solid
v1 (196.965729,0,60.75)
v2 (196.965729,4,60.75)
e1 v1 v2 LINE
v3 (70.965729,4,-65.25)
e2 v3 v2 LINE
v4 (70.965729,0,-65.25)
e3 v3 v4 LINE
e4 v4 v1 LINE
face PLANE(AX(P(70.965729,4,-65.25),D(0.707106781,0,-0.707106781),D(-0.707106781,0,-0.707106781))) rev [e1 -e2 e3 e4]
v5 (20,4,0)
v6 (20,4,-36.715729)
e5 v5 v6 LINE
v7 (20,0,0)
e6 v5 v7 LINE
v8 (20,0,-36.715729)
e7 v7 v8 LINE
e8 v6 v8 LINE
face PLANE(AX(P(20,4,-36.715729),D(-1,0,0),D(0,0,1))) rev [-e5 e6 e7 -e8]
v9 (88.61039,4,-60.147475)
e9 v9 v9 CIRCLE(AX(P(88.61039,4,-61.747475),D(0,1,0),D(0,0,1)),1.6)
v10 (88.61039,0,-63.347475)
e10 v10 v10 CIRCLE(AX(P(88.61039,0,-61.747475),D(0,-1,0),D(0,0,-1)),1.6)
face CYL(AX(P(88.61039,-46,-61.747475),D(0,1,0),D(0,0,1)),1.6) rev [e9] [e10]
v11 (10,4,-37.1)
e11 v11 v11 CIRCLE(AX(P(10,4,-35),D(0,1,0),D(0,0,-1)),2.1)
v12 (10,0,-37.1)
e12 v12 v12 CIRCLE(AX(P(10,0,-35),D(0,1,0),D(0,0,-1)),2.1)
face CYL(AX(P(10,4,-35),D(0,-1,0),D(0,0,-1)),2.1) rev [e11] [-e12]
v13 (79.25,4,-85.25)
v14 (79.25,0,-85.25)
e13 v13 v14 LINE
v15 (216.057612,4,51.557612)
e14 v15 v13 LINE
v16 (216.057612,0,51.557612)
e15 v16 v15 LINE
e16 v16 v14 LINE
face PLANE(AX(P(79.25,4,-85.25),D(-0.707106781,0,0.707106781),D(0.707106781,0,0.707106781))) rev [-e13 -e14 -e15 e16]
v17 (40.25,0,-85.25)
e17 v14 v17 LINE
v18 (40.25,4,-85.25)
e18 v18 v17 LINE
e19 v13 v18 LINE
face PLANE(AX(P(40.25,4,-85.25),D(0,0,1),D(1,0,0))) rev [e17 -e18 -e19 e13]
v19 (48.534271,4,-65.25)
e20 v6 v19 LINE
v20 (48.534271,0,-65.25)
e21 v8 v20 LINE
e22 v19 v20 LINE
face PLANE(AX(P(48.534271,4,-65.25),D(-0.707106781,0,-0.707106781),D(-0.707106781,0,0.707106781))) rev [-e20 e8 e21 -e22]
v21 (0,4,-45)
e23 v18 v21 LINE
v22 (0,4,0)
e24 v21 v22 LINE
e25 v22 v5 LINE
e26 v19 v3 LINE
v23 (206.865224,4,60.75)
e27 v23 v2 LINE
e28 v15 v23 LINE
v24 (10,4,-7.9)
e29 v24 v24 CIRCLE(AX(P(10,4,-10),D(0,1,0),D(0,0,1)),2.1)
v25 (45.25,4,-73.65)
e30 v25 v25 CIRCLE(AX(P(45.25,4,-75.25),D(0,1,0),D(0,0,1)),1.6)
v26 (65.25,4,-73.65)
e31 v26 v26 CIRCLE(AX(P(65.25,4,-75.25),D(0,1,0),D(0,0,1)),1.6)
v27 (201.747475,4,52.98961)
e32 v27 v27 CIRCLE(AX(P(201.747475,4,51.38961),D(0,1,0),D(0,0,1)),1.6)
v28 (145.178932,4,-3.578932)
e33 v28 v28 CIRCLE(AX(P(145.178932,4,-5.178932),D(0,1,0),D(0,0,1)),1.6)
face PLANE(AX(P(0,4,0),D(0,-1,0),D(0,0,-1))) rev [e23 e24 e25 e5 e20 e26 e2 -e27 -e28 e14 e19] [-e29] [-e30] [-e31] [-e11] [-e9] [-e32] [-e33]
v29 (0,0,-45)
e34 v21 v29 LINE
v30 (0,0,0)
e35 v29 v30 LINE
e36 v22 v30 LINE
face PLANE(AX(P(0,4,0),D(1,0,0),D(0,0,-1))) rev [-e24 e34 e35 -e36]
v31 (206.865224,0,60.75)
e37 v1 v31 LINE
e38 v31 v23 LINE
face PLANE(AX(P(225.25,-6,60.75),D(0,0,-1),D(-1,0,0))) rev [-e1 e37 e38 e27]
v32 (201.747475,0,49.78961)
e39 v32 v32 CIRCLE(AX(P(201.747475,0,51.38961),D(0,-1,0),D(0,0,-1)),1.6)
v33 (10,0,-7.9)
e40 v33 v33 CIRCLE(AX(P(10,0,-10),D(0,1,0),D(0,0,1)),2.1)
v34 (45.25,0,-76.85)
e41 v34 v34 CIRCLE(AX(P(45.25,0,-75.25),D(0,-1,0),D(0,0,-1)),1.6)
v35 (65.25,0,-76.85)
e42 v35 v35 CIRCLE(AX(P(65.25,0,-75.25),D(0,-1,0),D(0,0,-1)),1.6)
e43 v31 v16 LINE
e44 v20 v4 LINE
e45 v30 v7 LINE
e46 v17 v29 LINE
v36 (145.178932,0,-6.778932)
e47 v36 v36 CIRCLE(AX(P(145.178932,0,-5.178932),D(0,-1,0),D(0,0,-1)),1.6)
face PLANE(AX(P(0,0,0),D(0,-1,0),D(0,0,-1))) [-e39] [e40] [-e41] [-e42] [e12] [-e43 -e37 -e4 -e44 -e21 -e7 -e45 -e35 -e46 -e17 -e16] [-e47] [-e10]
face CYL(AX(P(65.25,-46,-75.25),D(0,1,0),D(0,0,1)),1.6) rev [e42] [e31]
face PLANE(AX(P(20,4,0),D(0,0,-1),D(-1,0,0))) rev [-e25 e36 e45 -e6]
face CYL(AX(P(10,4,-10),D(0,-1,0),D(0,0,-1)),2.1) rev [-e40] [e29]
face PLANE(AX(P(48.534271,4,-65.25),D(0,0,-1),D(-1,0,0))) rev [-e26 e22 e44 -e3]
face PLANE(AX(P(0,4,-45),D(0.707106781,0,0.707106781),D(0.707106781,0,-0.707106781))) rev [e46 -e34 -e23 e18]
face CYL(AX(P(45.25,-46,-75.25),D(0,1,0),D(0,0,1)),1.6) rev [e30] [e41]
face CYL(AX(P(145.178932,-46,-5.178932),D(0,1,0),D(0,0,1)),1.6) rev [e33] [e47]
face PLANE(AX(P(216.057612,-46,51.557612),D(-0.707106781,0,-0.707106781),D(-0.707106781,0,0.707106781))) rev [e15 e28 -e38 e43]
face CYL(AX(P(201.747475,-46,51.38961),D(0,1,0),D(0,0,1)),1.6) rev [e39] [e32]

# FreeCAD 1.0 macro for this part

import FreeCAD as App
import Part
import Sketcher
Q = App.Units.Quantity

doc = App.newDocument("Part")
params = doc.addObject("Spreadsheet::Sheet", "Params")
for row, (alias, value) in enumerate([
    ("sketch1_diameter", "4.2 mm"),
    ("sketch1_width", "20 mm"),
    ("sketch1_width2", "45 mm"),
    ("sketch1_width3", "39 mm"),
    ("pad1_length", "4 mm"),
    ("sketch2_width", "45 mm"),
    ("sketch2_height", "39 mm"),
    ("sketch2_height2", "20 mm"),
    ("pocket1_length", "10 mm"),
    ("sketch3_diameter", "3.2 mm"),
    ("pocket2_length", "50 mm"),
    ("sketch4_length", "13 mm"),
    ("pocket3_length", "50 mm"),
    ("sketch5_diameter", "3.2 mm"),
    ("pocket4_length", "50 mm"),
], start=1):
    params.set(f"A{row}", alias)
    params.set(f"B{row}", "=" + value)
    params.setAlias(f"B{row}", alias)

body = doc.addObject("PartDesign::Body", "Body")

# Sketch on XZ plane
sketch1 = body.newObject("Sketcher::SketchObject", "Sketch")
sketch1.AttachmentSupport = (doc.getObject("XZ_Plane"), [""])
sketch1.MapMode = "FlatFace"
sketch1.addGeometry([
    Part.LineSegment(App.Vector(0, 0, 0), App.Vector(20, 0, 0)),  # 0
    Part.LineSegment(App.Vector(20, 0, 0), App.Vector(20, -36.715729, 0)),  # 1
    Part.LineSegment(App.Vector(20, -36.715729, 0), App.Vector(48.534271, -65.25, 0)),  # 2
    Part.LineSegment(App.Vector(48.534271, -65.25, 0), App.Vector(70.965729, -65.25, 0)),  # 3
    Part.LineSegment(App.Vector(70.965729, -65.25, 0), App.Vector(205.25, 69.034271, 0)),  # 4
    Part.LineSegment(App.Vector(205.25, 69.034271, 0), App.Vector(205.25, 91.465729, 0)),  # 5
    Part.LineSegment(App.Vector(205.25, 91.465729, 0), App.Vector(176.715729, 120, 0)),  # 6
    Part.LineSegment(App.Vector(176.715729, 120, 0), App.Vector(140, 120, 0)),  # 7
    Part.LineSegment(App.Vector(140, 120, 0), App.Vector(140, 140, 0)),  # 8
    Part.LineSegment(App.Vector(140, 140, 0), App.Vector(185, 140, 0)),  # 9
    Part.LineSegment(App.Vector(185, 140, 0), App.Vector(225.25, 99.75, 0)),  # 10
    Part.LineSegment(App.Vector(225.25, 99.75, 0), App.Vector(225.25, 60.75, 0)),  # 11
    Part.LineSegment(App.Vector(225.25, 60.75, 0), App.Vector(79.25, -85.25, 0)),  # 12
    Part.LineSegment(App.Vector(79.25, -85.25, 0), App.Vector(40.25, -85.25, 0)),  # 13
    Part.LineSegment(App.Vector(40.25, -85.25, 0), App.Vector(0, -45, 0)),  # 14
    Part.LineSegment(App.Vector(0, -45, 0), App.Vector(0, 0, 0)),  # 15
    Part.Circle(App.Vector(175, 130, 0), App.Vector(0, 0, 1), 2.1),  # 16
    Part.Circle(App.Vector(150, 130, 0), App.Vector(0, 0, 1), 2.1),  # 17
    Part.Circle(App.Vector(10, -10, 0), App.Vector(0, 0, 1), 2.1),  # 18
    Part.Circle(App.Vector(10, -35, 0), App.Vector(0, 0, 1), 2.1),  # 19
], False)
sketch1.addConstraint([
    Sketcher.Constraint("Coincident", 0, 2, 1, 1),
    Sketcher.Constraint("Coincident", 1, 2, 2, 1),
    Sketcher.Constraint("Coincident", 2, 2, 3, 1),
    Sketcher.Constraint("Coincident", 3, 2, 4, 1),
    Sketcher.Constraint("Coincident", 4, 2, 5, 1),
    Sketcher.Constraint("Coincident", 5, 2, 6, 1),
    Sketcher.Constraint("Coincident", 6, 2, 7, 1),
    Sketcher.Constraint("Coincident", 7, 2, 8, 1),
    Sketcher.Constraint("Coincident", 8, 2, 9, 1),
    Sketcher.Constraint("Coincident", 9, 2, 10, 1),
    Sketcher.Constraint("Coincident", 10, 2, 11, 1),
    Sketcher.Constraint("Coincident", 11, 2, 12, 1),
    Sketcher.Constraint("Coincident", 12, 2, 13, 1),
    Sketcher.Constraint("Coincident", 13, 2, 14, 1),
    Sketcher.Constraint("Coincident", 14, 2, 15, 1),
    Sketcher.Constraint("Coincident", 15, 2, 0, 1),
    Sketcher.Constraint("Horizontal", 0),
    Sketcher.Constraint("Vertical", 1),
    Sketcher.Constraint("Horizontal", 3),
    Sketcher.Constraint("Vertical", 5),
    Sketcher.Constraint("Horizontal", 7),
    Sketcher.Constraint("Vertical", 8),
    Sketcher.Constraint("Horizontal", 9),
    Sketcher.Constraint("Vertical", 11),
    Sketcher.Constraint("Horizontal", 13),
    Sketcher.Constraint("Vertical", 15),
    Sketcher.Constraint("Coincident", 15, 2, -1, 1),
    Sketcher.Constraint("Equal", 16, 17),
    Sketcher.Constraint("Equal", 17, 18),
    Sketcher.Constraint("Equal", 18, 19),
    Sketcher.Constraint("Perpendicular", 2, 4),
    Sketcher.Constraint("Perpendicular", 4, 6),
    Sketcher.Constraint("Parallel", 6, 10),
    Sketcher.Constraint("Perpendicular", 10, 12),
    Sketcher.Constraint("Perpendicular", 12, 14),
    Sketcher.Constraint("Horizontal", 16, 3, 17, 3),
    Sketcher.Constraint("Vertical", 18, 3, 19, 3),
    Sketcher.Constraint("Equal", 7, 1),
    Sketcher.Constraint("Equal", 3, 5),
    Sketcher.Constraint("Equal", 0, 8),
    Sketcher.Constraint("Equal", 13, 11),
    Sketcher.Constraint("Equal", 9, 15),
    Sketcher.Constraint("Equal", 2, 6),
    Sketcher.Constraint("Equal", 10, 14),
    Sketcher.Constraint("Diameter", 16, Q("4.2 mm")),
    Sketcher.Constraint("DistanceX", 0, 1, 0, 2, Q("20 mm")),
    Sketcher.Constraint("DistanceX", 9, 1, 9, 2, Q("45 mm")),
    Sketcher.Constraint("DistanceX", 13, 2, 13, 1, Q("39 mm")),
    Sketcher.Constraint("DistanceX", -1, 1, 16, 3, Q("175 mm")),
    Sketcher.Constraint("DistanceY", -1, 1, 16, 3, Q("130 mm")),
    Sketcher.Constraint("DistanceX", -1, 1, 17, 3, Q("150 mm")),
    Sketcher.Constraint("DistanceX", -1, 1, 18, 3, Q("10 mm")),
    Sketcher.Constraint("DistanceY", 18, 3, -1, 1, Q("10 mm")),
    Sketcher.Constraint("DistanceY", 19, 3, -1, 1, Q("35 mm")),
    Sketcher.Constraint("DistanceY", -1, 1, 6, 2, Q("120 mm")),
    Sketcher.Constraint("DistanceX", 5, 2, 10, 2, Q("20 mm")),
    Sketcher.Constraint("DistanceY", 2, 2, -1, 1, Q("65.25 mm")),
    Sketcher.Constraint("DistanceX", 7, 2, 7, 1, Q("36.715729 mm")),
    Sketcher.Constraint("DistanceX", 3, 1, 3, 2, Q("22.431458 mm")),
])
sketch1.setExpression("Constraints[44]", "Params.sketch1_diameter")
sketch1.setExpression("Constraints[45]", "Params.sketch1_width")
sketch1.setExpression("Constraints[46]", "Params.sketch1_width2")
sketch1.setExpression("Constraints[47]", "Params.sketch1_width3")
pad1 = body.newObject("PartDesign::Pad", "Pad")
pad1.Profile = sketch1
pad1.setExpression("Length", "Params.pad1_length")
pad1.Reversed = True

# Sketch on XZ plane
sketch2 = body.newObject("Sketcher::SketchObject", "Sketch001")
sketch2.AttachmentSupport = (doc.getObject("XZ_Plane"), [""])
sketch2.MapMode = "FlatFace"
sketch2.AttachmentOffset = App.Placement(App.Vector(0, 0, -4), App.Rotation())
sketch2.addGeometry([
    Part.LineSegment(App.Vector(225.25, 99.75, 0), App.Vector(225.25, 60.75, 0)),  # 0
    Part.LineSegment(App.Vector(225.25, 60.75, 0), App.Vector(196.965729, 60.75, 0)),  # 1
    Part.LineSegment(App.Vector(196.965729, 60.75, 0), App.Vector(205.25, 69.034271, 0)),  # 2
    Part.LineSegment(App.Vector(205.25, 69.034271, 0), App.Vector(205.25, 91.465729, 0)),  # 3
    Part.LineSegment(App.Vector(205.25, 91.465729, 0), App.Vector(176.715729, 120, 0)),  # 4
    Part.LineSegment(App.Vector(176.715729, 120, 0), App.Vector(140, 120, 0)),  # 5
    Part.LineSegment(App.Vector(140, 120, 0), App.Vector(140, 140, 0)),  # 6
    Part.LineSegment(App.Vector(140, 140, 0), App.Vector(185, 140, 0)),  # 7
    Part.LineSegment(App.Vector(185, 140, 0), App.Vector(225.25, 99.75, 0)),  # 8
], False)
sketch2.addConstraint([
    Sketcher.Constraint("Coincident", 0, 2, 1, 1),
    Sketcher.Constraint("Coincident", 1, 2, 2, 1),
    Sketcher.Constraint("Coincident", 2, 2, 3, 1),
    Sketcher.Constraint("Coincident", 3, 2, 4, 1),
    Sketcher.Constraint("Coincident", 4, 2, 5, 1),
    Sketcher.Constraint("Coincident", 5, 2, 6, 1),
    Sketcher.Constraint("Coincident", 6, 2, 7, 1),
    Sketcher.Constraint("Coincident", 7, 2, 8, 1),
    Sketcher.Constraint("Coincident", 8, 2, 0, 1),
    Sketcher.Constraint("Vertical", 0),
    Sketcher.Constraint("Horizontal", 1),
    Sketcher.Constraint("Vertical", 3),
    Sketcher.Constraint("Horizontal", 5),
    Sketcher.Constraint("Vertical", 6),
    Sketcher.Constraint("Horizontal", 7),
    Sketcher.Constraint("Perpendicular", 2, 4),
    Sketcher.Constraint("Parallel", 4, 8),
    Sketcher.Constraint("DistanceX", 7, 1, 7, 2, Q("45 mm")),
    Sketcher.Constraint("DistanceY", 0, 2, 0, 1, Q("39 mm")),
    Sketcher.Constraint("DistanceY", 6, 1, 6, 2, Q("20 mm")),
    Sketcher.Constraint("Angle", 2, Q("45 deg")),
    Sketcher.Constraint("DistanceY", -1, 1, 4, 2, Q("120 mm")),
    Sketcher.Constraint("DistanceX", -1, 1, 5, 2, Q("140 mm")),
    Sketcher.Constraint("DistanceX", 2, 2, 0, 2, Q("20 mm")),
    Sketcher.Constraint("DistanceX", -1, 1, 0, 2, Q("225.25 mm")),
    Sketcher.Constraint("DistanceX", 4, 2, 1, 2, Q("20.25 mm")),
    Sketcher.Constraint("DistanceX", 1, 2, 1, 1, Q("28.284271 mm")),
])
sketch2.setExpression("Constraints[17]", "Params.sketch2_width")
sketch2.setExpression("Constraints[18]", "Params.sketch2_height")
sketch2.setExpression("Constraints[19]", "Params.sketch2_height2")
pocket1 = body.newObject("PartDesign::Pocket", "Pocket")
pocket1.Profile = sketch2
pocket1.setExpression("Length", "Params.pocket1_length")
pocket1.Reversed = True

# Sketch on XZ plane
sketch3 = body.newObject("Sketcher::SketchObject", "Sketch002")
sketch3.AttachmentSupport = (doc.getObject("XZ_Plane"), [""])
sketch3.MapMode = "FlatFace"
sketch3.AttachmentOffset = App.Placement(App.Vector(0, 0, -4), App.Rotation())
sketch3.addGeometry([
    Part.Circle(App.Vector(201.747475, 51.38961, 0), App.Vector(0, 0, 1), 1.6),
    Part.Circle(App.Vector(88.61039, -61.747475, 0), App.Vector(0, 0, 1), 1.6),
    Part.Circle(App.Vector(145.178932, -5.178932, 0), App.Vector(0, 0, 1), 1.6),
], False)
sketch3.addConstraint([
    Sketcher.Constraint("Equal", 0, 1),
    Sketcher.Constraint("Equal", 1, 2),
    Sketcher.Constraint("Diameter", 0, Q("3.2 mm")),
    Sketcher.Constraint("DistanceY", -1, 1, 0, 3, Q("51.38961 mm")),
    Sketcher.Constraint("DistanceX", -1, 1, 1, 3, Q("88.61039 mm")),
    Sketcher.Constraint("DistanceX", -1, 1, 0, 3, Q("201.747475 mm")),
    Sketcher.Constraint("DistanceY", 1, 3, -1, 1, Q("61.747475 mm")),
    Sketcher.Constraint("DistanceX", -1, 1, 2, 3, Q("145.178932 mm")),
    Sketcher.Constraint("DistanceY", 2, 3, -1, 1, Q("5.178932 mm")),
])
sketch3.setExpression("Constraints[2]", "Params.sketch3_diameter")
pocket2 = body.newObject("PartDesign::Pocket", "Pocket001")
pocket2.Profile = sketch3
pocket2.setExpression("Length", "Params.pocket2_length")
pocket2.Reversed = True

# Sketch on XZ plane
sketch4 = body.newObject("Sketcher::SketchObject", "Sketch003")
sketch4.AttachmentSupport = (doc.getObject("XZ_Plane"), [""])
sketch4.MapMode = "FlatFace"
sketch4.AttachmentOffset = App.Placement(App.Vector(0, 0, -4), App.Rotation())
sketch4.addGeometry([
    Part.LineSegment(App.Vector(225.25, 60.75, 0), App.Vector(216.057612, 51.557612, 0)),
    Part.LineSegment(App.Vector(216.057612, 51.557612, 0), App.Vector(206.865224, 60.75, 0)),
    Part.LineSegment(App.Vector(206.865224, 60.75, 0), App.Vector(225.25, 60.75, 0)),
], False)
sketch4.addConstraint([
    Sketcher.Constraint("Coincident", 0, 2, 1, 1),
    Sketcher.Constraint("Coincident", 1, 2, 2, 1),
    Sketcher.Constraint("Coincident", 2, 2, 0, 1),
    Sketcher.Constraint("Horizontal", 2),
    Sketcher.Constraint("Perpendicular", 0, 1),
    Sketcher.Constraint("Equal", 0, 1),
    Sketcher.Constraint("Distance", 0, Q("13 mm")),
    Sketcher.Constraint("DistanceY", -1, 1, 1, 2, Q("60.75 mm")),
    Sketcher.Constraint("DistanceX", -1, 1, 2, 2, Q("225.25 mm")),
])
sketch4.setExpression("Constraints[6]", "Params.sketch4_length")
pocket3 = body.newObject("PartDesign::Pocket", "Pocket002")
pocket3.Profile = sketch4
pocket3.setExpression("Length", "Params.pocket3_length")
pocket3.Reversed = True

# Sketch on XZ plane
sketch5 = body.newObject("Sketcher::SketchObject", "Sketch004")
sketch5.AttachmentSupport = (doc.getObject("XZ_Plane"), [""])
sketch5.MapMode = "FlatFace"
sketch5.AttachmentOffset = App.Placement(App.Vector(0, 0, -4), App.Rotation())
sketch5.addGeometry([
    Part.Circle(App.Vector(65.25, -75.25, 0), App.Vector(0, 0, 1), 1.6),
    Part.Circle(App.Vector(45.25, -75.25, 0), App.Vector(0, 0, 1), 1.6),
], False)
sketch5.addConstraint([
    Sketcher.Constraint("Equal", 0, 1),
    Sketcher.Constraint("Horizontal", 0, 3, 1, 3),
    Sketcher.Constraint("Diameter", 0, Q("3.2 mm")),
    Sketcher.Constraint("DistanceX", 1, 3, 0, 3, Q("20 mm")),
    Sketcher.Constraint("DistanceX", -1, 1, 0, 3, Q("65.25 mm")),
    Sketcher.Constraint("DistanceY", 0, 3, -1, 1, Q("75.25 mm")),
])
sketch5.setExpression("Constraints[2]", "Params.sketch5_diameter")
pocket4 = body.newObject("PartDesign::Pocket", "Pocket003")
pocket4.Profile = sketch5
pocket4.setExpression("Length", "Params.pocket4_length")
pocket4.Reversed = True

doc.recompute()
